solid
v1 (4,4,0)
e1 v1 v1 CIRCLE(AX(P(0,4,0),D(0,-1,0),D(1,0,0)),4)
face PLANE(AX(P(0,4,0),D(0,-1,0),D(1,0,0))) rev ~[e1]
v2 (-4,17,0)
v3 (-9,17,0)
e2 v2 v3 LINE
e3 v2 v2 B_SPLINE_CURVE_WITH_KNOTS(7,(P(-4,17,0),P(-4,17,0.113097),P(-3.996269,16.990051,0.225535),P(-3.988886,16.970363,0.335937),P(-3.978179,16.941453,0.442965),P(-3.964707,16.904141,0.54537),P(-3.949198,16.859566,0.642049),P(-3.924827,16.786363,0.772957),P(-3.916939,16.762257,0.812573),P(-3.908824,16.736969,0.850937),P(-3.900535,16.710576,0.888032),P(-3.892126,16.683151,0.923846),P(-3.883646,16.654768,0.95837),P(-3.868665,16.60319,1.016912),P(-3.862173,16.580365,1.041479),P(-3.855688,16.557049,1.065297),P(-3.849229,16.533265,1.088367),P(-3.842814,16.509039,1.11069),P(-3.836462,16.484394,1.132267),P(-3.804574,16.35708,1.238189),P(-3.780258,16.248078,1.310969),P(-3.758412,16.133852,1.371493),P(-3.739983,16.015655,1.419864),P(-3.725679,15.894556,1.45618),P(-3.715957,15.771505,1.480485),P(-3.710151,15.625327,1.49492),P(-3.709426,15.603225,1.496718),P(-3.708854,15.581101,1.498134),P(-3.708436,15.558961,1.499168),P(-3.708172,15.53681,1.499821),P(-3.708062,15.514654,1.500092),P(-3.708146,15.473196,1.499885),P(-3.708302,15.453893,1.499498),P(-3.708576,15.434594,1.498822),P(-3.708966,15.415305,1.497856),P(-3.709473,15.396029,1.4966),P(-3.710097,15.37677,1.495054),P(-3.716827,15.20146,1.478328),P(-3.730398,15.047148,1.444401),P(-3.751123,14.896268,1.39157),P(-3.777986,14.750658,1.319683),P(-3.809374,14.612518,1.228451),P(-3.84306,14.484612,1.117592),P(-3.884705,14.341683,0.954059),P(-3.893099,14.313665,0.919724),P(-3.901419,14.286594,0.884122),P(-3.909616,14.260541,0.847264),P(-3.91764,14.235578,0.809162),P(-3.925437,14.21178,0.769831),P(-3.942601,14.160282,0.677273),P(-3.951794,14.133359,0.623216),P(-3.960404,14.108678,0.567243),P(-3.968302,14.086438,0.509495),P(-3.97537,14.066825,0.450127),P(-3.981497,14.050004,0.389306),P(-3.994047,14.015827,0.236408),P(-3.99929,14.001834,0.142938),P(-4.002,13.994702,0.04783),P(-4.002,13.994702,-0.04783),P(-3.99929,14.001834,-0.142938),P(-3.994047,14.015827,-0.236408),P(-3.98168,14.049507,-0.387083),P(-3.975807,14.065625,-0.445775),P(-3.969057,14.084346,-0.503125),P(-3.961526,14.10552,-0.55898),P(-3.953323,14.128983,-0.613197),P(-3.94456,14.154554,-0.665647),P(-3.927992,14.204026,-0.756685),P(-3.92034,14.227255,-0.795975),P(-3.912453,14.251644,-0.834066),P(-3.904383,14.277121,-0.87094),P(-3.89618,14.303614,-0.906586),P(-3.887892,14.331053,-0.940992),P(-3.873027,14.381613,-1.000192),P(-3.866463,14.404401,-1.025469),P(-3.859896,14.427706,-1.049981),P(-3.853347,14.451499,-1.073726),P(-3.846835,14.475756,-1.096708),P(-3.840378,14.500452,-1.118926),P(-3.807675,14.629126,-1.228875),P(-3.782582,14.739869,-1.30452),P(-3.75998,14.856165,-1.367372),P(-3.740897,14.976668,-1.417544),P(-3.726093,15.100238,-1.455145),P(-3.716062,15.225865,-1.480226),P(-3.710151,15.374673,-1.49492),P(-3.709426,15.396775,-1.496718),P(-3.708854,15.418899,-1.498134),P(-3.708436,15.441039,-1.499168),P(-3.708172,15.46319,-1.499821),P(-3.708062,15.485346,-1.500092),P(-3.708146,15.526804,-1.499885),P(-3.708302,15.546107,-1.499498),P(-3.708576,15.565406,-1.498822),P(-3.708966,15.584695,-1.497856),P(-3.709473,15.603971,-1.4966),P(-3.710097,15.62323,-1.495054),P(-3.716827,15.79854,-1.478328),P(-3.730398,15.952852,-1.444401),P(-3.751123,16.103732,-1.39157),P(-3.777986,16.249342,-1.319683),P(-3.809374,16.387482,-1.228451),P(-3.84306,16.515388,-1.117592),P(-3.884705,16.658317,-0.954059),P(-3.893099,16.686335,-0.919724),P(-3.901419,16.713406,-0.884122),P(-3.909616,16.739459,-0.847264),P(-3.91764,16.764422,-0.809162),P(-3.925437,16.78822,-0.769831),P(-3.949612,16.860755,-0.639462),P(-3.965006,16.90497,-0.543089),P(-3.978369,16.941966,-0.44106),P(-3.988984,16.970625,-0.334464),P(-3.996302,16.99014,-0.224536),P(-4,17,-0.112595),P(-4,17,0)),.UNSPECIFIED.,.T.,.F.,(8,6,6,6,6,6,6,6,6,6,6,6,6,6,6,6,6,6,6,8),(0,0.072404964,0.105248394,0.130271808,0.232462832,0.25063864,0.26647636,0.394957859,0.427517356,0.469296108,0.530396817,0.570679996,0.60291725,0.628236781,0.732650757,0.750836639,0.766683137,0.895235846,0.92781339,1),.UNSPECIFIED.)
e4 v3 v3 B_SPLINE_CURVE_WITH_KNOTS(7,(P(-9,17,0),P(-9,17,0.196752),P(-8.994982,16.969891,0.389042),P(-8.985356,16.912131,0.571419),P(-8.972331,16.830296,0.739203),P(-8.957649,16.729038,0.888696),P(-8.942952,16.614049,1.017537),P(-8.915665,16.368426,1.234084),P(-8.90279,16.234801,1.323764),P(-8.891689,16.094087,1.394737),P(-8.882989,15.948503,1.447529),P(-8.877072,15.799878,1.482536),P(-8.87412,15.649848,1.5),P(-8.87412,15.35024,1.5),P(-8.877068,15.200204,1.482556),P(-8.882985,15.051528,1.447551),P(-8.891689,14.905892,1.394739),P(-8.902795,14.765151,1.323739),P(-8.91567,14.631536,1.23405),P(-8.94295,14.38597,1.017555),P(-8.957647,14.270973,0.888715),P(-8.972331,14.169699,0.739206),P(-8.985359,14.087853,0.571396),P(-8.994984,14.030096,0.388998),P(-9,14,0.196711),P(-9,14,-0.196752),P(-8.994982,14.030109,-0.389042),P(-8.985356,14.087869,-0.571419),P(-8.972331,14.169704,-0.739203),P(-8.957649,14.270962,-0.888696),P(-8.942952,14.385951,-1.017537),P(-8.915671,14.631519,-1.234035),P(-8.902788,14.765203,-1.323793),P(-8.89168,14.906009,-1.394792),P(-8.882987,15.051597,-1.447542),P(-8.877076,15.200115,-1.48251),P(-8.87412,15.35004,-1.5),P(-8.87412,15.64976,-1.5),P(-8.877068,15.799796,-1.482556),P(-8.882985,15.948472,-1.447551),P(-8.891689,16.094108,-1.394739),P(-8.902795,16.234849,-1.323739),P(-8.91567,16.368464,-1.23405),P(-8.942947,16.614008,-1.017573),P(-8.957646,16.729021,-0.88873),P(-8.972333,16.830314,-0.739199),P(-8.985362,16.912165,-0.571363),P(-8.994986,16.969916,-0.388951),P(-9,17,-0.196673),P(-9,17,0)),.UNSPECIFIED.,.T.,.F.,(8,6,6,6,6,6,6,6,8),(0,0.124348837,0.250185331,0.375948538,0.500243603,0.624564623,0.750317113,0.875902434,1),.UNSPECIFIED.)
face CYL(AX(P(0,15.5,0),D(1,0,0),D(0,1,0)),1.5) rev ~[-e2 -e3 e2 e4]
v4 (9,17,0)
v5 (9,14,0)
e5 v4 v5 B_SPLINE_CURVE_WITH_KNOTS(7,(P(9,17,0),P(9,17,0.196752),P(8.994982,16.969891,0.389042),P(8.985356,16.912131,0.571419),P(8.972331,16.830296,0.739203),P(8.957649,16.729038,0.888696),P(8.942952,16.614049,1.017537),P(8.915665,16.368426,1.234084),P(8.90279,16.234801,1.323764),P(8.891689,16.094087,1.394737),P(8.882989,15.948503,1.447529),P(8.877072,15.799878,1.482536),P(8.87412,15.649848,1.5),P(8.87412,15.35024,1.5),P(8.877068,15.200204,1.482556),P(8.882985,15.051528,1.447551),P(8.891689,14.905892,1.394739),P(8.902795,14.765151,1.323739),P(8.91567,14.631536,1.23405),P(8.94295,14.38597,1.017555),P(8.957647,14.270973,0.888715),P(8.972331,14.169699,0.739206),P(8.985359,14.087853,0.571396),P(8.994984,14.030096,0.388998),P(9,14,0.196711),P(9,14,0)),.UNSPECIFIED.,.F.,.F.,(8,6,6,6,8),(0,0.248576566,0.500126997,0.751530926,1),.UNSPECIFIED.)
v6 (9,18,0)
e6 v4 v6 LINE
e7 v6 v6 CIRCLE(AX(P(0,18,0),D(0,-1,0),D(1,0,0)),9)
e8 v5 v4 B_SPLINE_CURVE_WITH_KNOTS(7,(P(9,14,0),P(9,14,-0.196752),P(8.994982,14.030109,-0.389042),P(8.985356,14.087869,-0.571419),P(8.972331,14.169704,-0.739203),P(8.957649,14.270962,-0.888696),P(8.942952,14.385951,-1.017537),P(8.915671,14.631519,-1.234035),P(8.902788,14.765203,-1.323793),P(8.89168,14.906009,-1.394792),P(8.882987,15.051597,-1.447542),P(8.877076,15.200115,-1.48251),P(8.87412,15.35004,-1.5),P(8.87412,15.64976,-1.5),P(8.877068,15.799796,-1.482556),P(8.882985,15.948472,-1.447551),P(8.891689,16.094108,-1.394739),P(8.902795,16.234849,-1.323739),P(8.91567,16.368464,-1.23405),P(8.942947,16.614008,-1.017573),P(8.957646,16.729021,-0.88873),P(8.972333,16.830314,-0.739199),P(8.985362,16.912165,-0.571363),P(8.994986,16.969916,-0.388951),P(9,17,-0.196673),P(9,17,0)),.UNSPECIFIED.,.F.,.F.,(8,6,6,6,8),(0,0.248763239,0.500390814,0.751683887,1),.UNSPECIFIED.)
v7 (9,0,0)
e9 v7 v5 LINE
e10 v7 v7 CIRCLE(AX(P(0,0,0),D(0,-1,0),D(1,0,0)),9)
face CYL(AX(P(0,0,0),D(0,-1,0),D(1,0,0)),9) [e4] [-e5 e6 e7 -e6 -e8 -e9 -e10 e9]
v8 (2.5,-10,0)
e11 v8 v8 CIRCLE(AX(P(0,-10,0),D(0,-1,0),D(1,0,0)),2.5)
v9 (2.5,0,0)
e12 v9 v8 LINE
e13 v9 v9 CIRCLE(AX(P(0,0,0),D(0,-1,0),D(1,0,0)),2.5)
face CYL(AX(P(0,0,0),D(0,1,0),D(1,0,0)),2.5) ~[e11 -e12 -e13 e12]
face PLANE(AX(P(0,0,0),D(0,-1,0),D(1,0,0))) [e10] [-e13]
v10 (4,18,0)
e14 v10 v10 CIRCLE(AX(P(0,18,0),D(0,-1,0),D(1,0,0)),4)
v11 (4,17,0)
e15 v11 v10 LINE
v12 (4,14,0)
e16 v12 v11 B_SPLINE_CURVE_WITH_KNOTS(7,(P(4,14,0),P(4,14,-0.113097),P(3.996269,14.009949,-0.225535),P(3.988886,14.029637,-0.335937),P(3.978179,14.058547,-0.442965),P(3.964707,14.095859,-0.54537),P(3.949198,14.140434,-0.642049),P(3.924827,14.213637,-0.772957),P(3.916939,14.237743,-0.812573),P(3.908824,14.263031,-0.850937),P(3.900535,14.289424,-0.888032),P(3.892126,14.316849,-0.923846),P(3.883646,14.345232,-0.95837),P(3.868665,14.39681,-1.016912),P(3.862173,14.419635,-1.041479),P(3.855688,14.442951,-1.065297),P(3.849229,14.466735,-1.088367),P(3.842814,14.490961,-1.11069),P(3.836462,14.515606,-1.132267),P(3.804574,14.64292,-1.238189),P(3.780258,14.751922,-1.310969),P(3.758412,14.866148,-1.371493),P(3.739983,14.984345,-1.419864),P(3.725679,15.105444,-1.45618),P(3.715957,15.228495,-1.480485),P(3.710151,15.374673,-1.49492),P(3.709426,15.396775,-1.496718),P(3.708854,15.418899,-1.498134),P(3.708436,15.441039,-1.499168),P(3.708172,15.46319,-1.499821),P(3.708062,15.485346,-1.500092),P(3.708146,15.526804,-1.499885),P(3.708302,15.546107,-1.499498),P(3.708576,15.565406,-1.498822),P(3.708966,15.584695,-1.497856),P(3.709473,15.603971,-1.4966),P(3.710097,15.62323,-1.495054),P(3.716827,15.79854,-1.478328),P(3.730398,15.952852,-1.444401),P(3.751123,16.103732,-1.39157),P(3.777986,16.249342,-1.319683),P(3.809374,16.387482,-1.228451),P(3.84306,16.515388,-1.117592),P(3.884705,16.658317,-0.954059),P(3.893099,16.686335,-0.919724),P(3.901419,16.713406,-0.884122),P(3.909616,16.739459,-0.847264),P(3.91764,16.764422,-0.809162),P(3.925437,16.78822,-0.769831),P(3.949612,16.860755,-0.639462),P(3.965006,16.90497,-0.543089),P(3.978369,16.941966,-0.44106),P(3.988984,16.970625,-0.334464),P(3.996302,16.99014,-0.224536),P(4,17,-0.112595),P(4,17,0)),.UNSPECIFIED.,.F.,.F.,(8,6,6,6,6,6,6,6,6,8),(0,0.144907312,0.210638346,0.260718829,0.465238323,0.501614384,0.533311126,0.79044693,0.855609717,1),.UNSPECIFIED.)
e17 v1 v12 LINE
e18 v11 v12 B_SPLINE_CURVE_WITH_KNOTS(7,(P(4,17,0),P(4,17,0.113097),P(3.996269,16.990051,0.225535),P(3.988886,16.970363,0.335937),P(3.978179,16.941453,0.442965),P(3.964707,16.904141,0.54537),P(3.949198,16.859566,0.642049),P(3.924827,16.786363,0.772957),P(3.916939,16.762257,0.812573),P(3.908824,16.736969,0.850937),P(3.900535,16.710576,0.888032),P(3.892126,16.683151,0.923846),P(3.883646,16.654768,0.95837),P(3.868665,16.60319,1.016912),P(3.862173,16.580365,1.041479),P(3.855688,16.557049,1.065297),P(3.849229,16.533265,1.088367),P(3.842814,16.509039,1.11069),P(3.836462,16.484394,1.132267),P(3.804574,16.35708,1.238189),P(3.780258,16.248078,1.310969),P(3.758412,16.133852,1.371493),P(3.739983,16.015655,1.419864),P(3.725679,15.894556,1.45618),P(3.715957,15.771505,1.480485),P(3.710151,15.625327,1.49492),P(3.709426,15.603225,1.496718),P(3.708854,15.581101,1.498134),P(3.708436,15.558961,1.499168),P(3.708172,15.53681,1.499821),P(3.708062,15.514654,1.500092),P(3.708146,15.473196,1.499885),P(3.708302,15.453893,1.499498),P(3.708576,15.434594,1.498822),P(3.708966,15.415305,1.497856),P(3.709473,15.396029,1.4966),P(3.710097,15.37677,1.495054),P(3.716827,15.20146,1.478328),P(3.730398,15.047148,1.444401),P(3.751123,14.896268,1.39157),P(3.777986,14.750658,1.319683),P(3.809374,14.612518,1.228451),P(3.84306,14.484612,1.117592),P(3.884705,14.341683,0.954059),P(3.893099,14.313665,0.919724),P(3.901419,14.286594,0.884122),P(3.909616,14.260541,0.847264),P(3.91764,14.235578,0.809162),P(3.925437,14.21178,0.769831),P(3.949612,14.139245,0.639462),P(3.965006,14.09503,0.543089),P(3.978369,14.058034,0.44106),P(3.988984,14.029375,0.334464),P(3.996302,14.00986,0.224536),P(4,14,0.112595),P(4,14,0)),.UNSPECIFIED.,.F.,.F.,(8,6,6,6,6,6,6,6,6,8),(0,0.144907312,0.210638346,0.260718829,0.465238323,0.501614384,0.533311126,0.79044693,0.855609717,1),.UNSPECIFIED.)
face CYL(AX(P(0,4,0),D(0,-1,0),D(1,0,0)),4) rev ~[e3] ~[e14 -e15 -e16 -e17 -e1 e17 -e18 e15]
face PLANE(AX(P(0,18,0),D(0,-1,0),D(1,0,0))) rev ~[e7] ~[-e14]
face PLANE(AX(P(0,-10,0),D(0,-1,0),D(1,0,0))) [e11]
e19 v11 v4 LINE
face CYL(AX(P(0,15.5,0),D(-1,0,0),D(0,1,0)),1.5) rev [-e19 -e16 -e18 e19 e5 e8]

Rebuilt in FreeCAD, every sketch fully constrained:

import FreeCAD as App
import Part
import Sketcher

V = App.Vector

doc = App.newDocument("Part")
params = doc.addObject("Spreadsheet::Sheet", "Params")
for row, (alias, value) in enumerate([
    ("sketch1_diameter", "5 mm"),
    ("pad1_length", "10 mm"),
    ("sketch2_diameter", "18 mm"),
    ("pad2_length", "18 mm"),
    ("sketch3_diameter", "8 mm"),
    ("pocket1_length", "21.4 mm"),
    ("sketch4_diameter", "3 mm"),
], start=1):
    params.set(f"A{row}", alias)
    params.set(f"B{row}", "=" + value)
    params.setAlias(f"B{row}", alias)

body = doc.addObject("PartDesign::Body", "Body")

sketch1 = doc.addObject("Sketcher::SketchObject", "Sketch")
body.addObject(sketch1)
sketch1.AttachmentSupport = (doc.XZ_Plane, [""])
sketch1.MapMode = "FlatFace"
sketch1.addGeometry(Part.Circle(V(0, 0, 0), V(0, 0, 1), 2.5), False)
sketch1.addConstraint(Sketcher.Constraint("Coincident", 0, 3, -1, 1))
sketch1.addConstraint(Sketcher.Constraint("Diameter", 0, 5.0))
sketch1.setExpression("Constraints[1]", "Params.sketch1_diameter")
pad1 = doc.addObject("PartDesign::Pad", "Pad")
body.addObject(pad1)
pad1.Profile = sketch1
pad1.setExpression("Length", "Params.pad1_length")

sketch2 = doc.addObject("Sketcher::SketchObject", "Sketch001")
body.addObject(sketch2)
sketch2.AttachmentSupport = (doc.XZ_Plane, [""])
sketch2.MapMode = "FlatFace"
sketch2.addGeometry(Part.Circle(V(0, 0, 0), V(0, 0, 1), 9), False)
sketch2.addConstraint(Sketcher.Constraint("Coincident", 0, 3, -1, 1))
sketch2.addConstraint(Sketcher.Constraint("Diameter", 0, 18.0))
sketch2.setExpression("Constraints[1]", "Params.sketch2_diameter")
pad2 = doc.addObject("PartDesign::Pad", "Pad001")
body.addObject(pad2)
pad2.Profile = sketch2
pad2.setExpression("Length", "Params.pad2_length")
pad2.Reversed = True

sketch3 = doc.addObject("Sketcher::SketchObject", "Sketch002")
body.addObject(sketch3)
sketch3.AttachmentSupport = (doc.XZ_Plane, [""])
sketch3.MapMode = "FlatFace"
sketch3.AttachmentOffset = App.Placement(V(0, 0, -4), App.Rotation())
sketch3.addGeometry(Part.Circle(V(0, 0, 0), V(0, 0, 1), 4), False)
sketch3.addConstraint(Sketcher.Constraint("Coincident", 0, 3, -1, 1))
sketch3.addConstraint(Sketcher.Constraint("Diameter", 0, 8.0))
sketch3.setExpression("Constraints[1]", "Params.sketch3_diameter")
pocket1 = doc.addObject("PartDesign::Pocket", "Pocket")
body.addObject(pocket1)
pocket1.Profile = sketch3
pocket1.setExpression("Length", "Params.pocket1_length")

sketch4 = doc.addObject("Sketcher::SketchObject", "Sketch003")
body.addObject(sketch4)
sketch4.AttachmentSupport = (doc.YZ_Plane, [""])
sketch4.MapMode = "FlatFace"
sketch4.addGeometry(Part.Circle(V(15.5, 0, 0), V(0, 0, 1), 1.5), False)
sketch4.addConstraint(Sketcher.Constraint("PointOnObject", 0, 3, -1))
sketch4.addConstraint(Sketcher.Constraint("Diameter", 0, 3.0))
sketch4.addConstraint(Sketcher.Constraint("DistanceX", -1, 1, 0, 3, 15.5))
sketch4.setExpression("Constraints[1]", "Params.sketch4_diameter")
pocket2 = doc.addObject("PartDesign::Pocket", "Pocket001")
body.addObject(pocket2)
pocket2.Profile = sketch4
pocket2.Type = "ThroughAll"
pocket2.Midplane = True

doc.recompute()
